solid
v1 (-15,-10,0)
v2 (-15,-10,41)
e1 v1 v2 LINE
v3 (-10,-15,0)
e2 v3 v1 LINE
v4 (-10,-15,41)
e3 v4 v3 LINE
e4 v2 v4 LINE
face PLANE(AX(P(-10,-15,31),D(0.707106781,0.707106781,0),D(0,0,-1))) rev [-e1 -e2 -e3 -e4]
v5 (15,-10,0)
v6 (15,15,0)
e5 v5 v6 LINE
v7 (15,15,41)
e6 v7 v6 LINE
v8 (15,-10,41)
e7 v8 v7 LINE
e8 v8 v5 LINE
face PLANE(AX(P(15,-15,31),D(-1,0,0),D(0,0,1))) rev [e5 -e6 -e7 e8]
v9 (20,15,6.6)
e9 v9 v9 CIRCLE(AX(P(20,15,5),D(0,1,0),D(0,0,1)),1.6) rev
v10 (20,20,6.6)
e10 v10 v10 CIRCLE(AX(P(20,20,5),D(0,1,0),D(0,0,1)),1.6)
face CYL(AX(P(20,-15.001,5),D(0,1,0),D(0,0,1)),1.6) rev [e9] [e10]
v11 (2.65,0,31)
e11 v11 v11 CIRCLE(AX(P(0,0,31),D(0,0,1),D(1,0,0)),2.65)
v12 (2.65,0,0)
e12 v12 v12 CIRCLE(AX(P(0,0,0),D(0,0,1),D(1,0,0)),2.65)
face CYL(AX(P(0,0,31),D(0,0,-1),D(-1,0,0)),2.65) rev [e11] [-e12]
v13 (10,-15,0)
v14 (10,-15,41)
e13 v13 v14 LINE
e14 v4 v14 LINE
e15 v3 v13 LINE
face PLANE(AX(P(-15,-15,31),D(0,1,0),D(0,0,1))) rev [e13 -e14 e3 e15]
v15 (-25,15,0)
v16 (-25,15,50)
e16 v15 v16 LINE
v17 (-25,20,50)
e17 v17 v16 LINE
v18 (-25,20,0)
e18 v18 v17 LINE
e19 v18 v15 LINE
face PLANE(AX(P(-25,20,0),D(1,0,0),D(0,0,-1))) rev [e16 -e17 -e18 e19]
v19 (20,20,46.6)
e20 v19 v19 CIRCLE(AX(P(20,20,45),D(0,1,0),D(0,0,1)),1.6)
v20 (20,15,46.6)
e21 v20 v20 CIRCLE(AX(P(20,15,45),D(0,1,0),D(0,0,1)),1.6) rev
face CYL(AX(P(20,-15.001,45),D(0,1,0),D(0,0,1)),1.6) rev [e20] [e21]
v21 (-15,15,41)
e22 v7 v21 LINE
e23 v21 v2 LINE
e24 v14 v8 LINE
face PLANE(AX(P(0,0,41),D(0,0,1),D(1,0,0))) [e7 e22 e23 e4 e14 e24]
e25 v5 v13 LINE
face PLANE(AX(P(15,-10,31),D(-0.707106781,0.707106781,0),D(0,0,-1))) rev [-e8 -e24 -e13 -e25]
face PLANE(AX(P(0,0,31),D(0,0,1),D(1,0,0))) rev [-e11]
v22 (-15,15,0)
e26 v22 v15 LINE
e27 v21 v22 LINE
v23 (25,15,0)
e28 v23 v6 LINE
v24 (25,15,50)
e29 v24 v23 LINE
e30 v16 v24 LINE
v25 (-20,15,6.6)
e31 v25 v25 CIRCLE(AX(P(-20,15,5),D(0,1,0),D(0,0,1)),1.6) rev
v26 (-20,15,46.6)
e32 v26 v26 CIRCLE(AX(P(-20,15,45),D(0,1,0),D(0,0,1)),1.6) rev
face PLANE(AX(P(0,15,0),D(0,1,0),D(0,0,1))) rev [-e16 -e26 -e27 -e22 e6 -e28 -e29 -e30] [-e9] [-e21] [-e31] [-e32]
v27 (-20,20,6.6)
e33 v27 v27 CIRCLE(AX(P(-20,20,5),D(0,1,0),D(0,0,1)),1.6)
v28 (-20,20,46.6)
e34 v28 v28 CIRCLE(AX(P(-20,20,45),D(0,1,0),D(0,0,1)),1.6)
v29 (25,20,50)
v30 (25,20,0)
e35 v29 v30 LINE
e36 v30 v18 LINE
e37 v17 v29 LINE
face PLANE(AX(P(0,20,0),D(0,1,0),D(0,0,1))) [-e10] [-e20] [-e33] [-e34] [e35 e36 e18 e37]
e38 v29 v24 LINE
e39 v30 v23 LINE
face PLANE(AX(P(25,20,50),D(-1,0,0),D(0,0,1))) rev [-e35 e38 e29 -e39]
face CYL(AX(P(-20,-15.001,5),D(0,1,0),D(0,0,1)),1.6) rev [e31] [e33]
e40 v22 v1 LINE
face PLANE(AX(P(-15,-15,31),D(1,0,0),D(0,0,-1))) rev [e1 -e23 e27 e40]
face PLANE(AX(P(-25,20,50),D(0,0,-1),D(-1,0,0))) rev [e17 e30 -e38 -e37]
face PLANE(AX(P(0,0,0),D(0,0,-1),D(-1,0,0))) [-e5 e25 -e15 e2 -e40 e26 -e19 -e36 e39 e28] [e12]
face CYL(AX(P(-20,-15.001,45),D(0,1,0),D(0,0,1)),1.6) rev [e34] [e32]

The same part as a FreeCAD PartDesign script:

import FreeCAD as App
import Part
import Sketcher
Q = App.Units.Quantity


def edges_at(feature, points):
    """Names of the edges that pass closest to the given points."""
    edges = feature.Shape.Edges
    near = lambda p: min(range(len(edges)), key=lambda i: edges[i].distToShape(Part.Vertex(*p))[0])
    return sorted({f"Edge{near(p) + 1}" for p in points})

doc = App.newDocument("Part")
params = doc.addObject("Spreadsheet::Sheet", "Params")
for row, (alias, value) in enumerate([
    ("sketch1_diameter", "5.3 mm"),
    ("sketch1_width", "30 mm"),
    ("pad1_length", "31 mm"),
    ("sketch2_width", "30 mm"),
    ("pad2_length", "10 mm"),
    ("sketch3_width", "50 mm"),
    ("pad3_length", "5 mm"),
    ("chamfer_size", "5 mm"),
    ("sketch4_diameter", "3.2 mm"),
    ("sketch5_diameter", "3.2 mm"),
    ("sketch6_diameter", "3.2 mm"),
    ("sketch7_diameter", "3.2 mm"),
], start=1):
    params.set(f"A{row}", alias)
    params.set(f"B{row}", "=" + value)
    params.setAlias(f"B{row}", alias)

body = doc.addObject("PartDesign::Body", "Body")

# Sketch on XY plane
sketch1 = body.newObject("Sketcher::SketchObject", "Sketch")
sketch1.AttachmentSupport = (doc.getObject("XY_Plane"), [""])
sketch1.MapMode = "FlatFace"
sketch1.addGeometry(Part.LineSegment(App.Vector(-15, 15, 0), App.Vector(-15, -15, 0)), False)
sketch1.addGeometry(Part.LineSegment(App.Vector(-15, -15, 0), App.Vector(15, -15, 0)), False)
sketch1.addGeometry(Part.LineSegment(App.Vector(15, -15, 0), App.Vector(15, 15, 0)), False)
sketch1.addGeometry(Part.LineSegment(App.Vector(15, 15, 0), App.Vector(-15, 15, 0)), False)
sketch1.addGeometry(Part.Circle(App.Vector(0, 0, 0), App.Vector(0, 0, 1), 2.6), False)
sketch1.addConstraint(Sketcher.Constraint("Coincident", 0, 2, 1, 1))
sketch1.addConstraint(Sketcher.Constraint("Coincident", 1, 2, 2, 1))
sketch1.addConstraint(Sketcher.Constraint("Coincident", 2, 2, 3, 1))
sketch1.addConstraint(Sketcher.Constraint("Coincident", 3, 2, 0, 1))
sketch1.addConstraint(Sketcher.Constraint("Vertical", 0))
sketch1.addConstraint(Sketcher.Constraint("Horizontal", 1))
sketch1.addConstraint(Sketcher.Constraint("Vertical", 2))
sketch1.addConstraint(Sketcher.Constraint("Horizontal", 3))
sketch1.addConstraint(Sketcher.Constraint("Coincident", 4, 3, -1, 1))
sketch1.addConstraint(Sketcher.Constraint("Symmetric", 0, 2, 2, 2, -1, 1))
sketch1.addConstraint(Sketcher.Constraint("Equal", 3, 0))
sketch1.addConstraint(Sketcher.Constraint("Diameter", 4, Q("5.3 mm")))
sketch1.addConstraint(Sketcher.Constraint("DistanceX", 1, 1, 1, 2, Q("30 mm")))
sketch1.setExpression("Constraints[11]", "Params.sketch1_diameter")
sketch1.setExpression("Constraints[12]", "Params.sketch1_width")
pad1 = body.newObject("PartDesign::Pad", "Pad")
pad1.Profile = sketch1
pad1.setExpression("Length", "Params.pad1_length")

# Sketch on XY plane
sketch2 = body.newObject("Sketcher::SketchObject", "Sketch001")
sketch2.AttachmentSupport = (doc.getObject("XY_Plane"), [""])
sketch2.MapMode = "FlatFace"
sketch2.AttachmentOffset = App.Placement(App.Vector(0, 0, 31), App.Rotation())
sketch2.addGeometry(Part.LineSegment(App.Vector(-15, 15, 0), App.Vector(-15, -15, 0)), False)
sketch2.addGeometry(Part.LineSegment(App.Vector(-15, -15, 0), App.Vector(15, -15, 0)), False)
sketch2.addGeometry(Part.LineSegment(App.Vector(15, -15, 0), App.Vector(15, 15, 0)), False)
sketch2.addGeometry(Part.LineSegment(App.Vector(15, 15, 0), App.Vector(-15, 15, 0)), False)
sketch2.addConstraint(Sketcher.Constraint("Coincident", 0, 2, 1, 1))
sketch2.addConstraint(Sketcher.Constraint("Coincident", 1, 2, 2, 1))
sketch2.addConstraint(Sketcher.Constraint("Coincident", 2, 2, 3, 1))
sketch2.addConstraint(Sketcher.Constraint("Coincident", 3, 2, 0, 1))
sketch2.addConstraint(Sketcher.Constraint("Vertical", 0))
sketch2.addConstraint(Sketcher.Constraint("Horizontal", 1))
sketch2.addConstraint(Sketcher.Constraint("Vertical", 2))
sketch2.addConstraint(Sketcher.Constraint("Horizontal", 3))
sketch2.addConstraint(Sketcher.Constraint("Symmetric", 0, 2, 2, 2, -1, 1))
sketch2.addConstraint(Sketcher.Constraint("Equal", 3, 0))
sketch2.addConstraint(Sketcher.Constraint("DistanceX", 1, 1, 1, 2, Q("30 mm")))
sketch2.setExpression("Constraints[10]", "Params.sketch2_width")
pad2 = body.newObject("PartDesign::Pad", "Pad001")
pad2.Profile = sketch2
pad2.setExpression("Length", "Params.pad2_length")

# Sketch on XZ plane
sketch3 = body.newObject("Sketcher::SketchObject", "Sketch002")
sketch3.AttachmentSupport = (doc.getObject("XZ_Plane"), [""])
sketch3.MapMode = "FlatFace"
sketch3.AttachmentOffset = App.Placement(App.Vector(0, 0, -15), App.Rotation())
sketch3.addGeometry(Part.LineSegment(App.Vector(-25, 0, 0), App.Vector(-25, 50, 0)), False)
sketch3.addGeometry(Part.LineSegment(App.Vector(-25, 50, 0), App.Vector(25, 50, 0)), False)
sketch3.addGeometry(Part.LineSegment(App.Vector(25, 50, 0), App.Vector(25, 0, 0)), False)
sketch3.addGeometry(Part.LineSegment(App.Vector(25, 0, 0), App.Vector(-25, 0, 0)), False)
sketch3.addConstraint(Sketcher.Constraint("Coincident", 0, 2, 1, 1))
sketch3.addConstraint(Sketcher.Constraint("Coincident", 1, 2, 2, 1))
sketch3.addConstraint(Sketcher.Constraint("Coincident", 2, 2, 3, 1))
sketch3.addConstraint(Sketcher.Constraint("Coincident", 3, 2, 0, 1))
sketch3.addConstraint(Sketcher.Constraint("Vertical", 0))
sketch3.addConstraint(Sketcher.Constraint("Horizontal", 1))
sketch3.addConstraint(Sketcher.Constraint("Vertical", 2))
sketch3.addConstraint(Sketcher.Constraint("Horizontal", 3))
sketch3.addConstraint(Sketcher.Constraint("Symmetric", 2, 2, 3, 2, -1, 1))
sketch3.addConstraint(Sketcher.Constraint("Equal", 3, 0))
sketch3.addConstraint(Sketcher.Constraint("DistanceX", 1, 1, 1, 2, Q("50 mm")))
sketch3.setExpression("Constraints[10]", "Params.sketch3_width")
pad3 = body.newObject("PartDesign::Pad", "Pad002")
pad3.Profile = sketch3
pad3.setExpression("Length", "Params.pad3_length")
pad3.Reversed = True
doc.recompute()

chamfer = body.newObject("PartDesign::Chamfer", "Chamfer")
chamfer.Base = (pad3, edges_at(pad3, [(15, -15, 20.5), (-15, -15, 20.5)]))
chamfer.setExpression("Size", "Params.chamfer_size")

# Sketch on XZ plane
sketch4 = body.newObject("Sketcher::SketchObject", "Sketch003")
sketch4.AttachmentSupport = (doc.getObject("XZ_Plane"), [""])
sketch4.MapMode = "FlatFace"
sketch4.AttachmentOffset = App.Placement(App.Vector(0, 0, -20), App.Rotation())
sketch4.addGeometry(Part.Circle(App.Vector(-20, 5, 0), App.Vector(0, 0, 1), 1.6), False)
sketch4.addConstraint(Sketcher.Constraint("Diameter", 0, Q("3.2 mm")))
sketch4.addConstraint(Sketcher.Constraint("DistanceX", 0, 3, -1, 1, Q("20 mm")))
sketch4.addConstraint(Sketcher.Constraint("DistanceY", -1, 1, 0, 3, Q("5 mm")))
sketch4.setExpression("Constraints[0]", "Params.sketch4_diameter")
pocket1 = body.newObject("PartDesign::Pocket", "Pocket")
pocket1.Profile = sketch4
pocket1.Type = "UpToFirst"
pocket1.Reversed = True

# Sketch on XZ plane
sketch5 = body.newObject("Sketcher::SketchObject", "Sketch004")
sketch5.AttachmentSupport = (doc.getObject("XZ_Plane"), [""])
sketch5.MapMode = "FlatFace"
sketch5.AttachmentOffset = App.Placement(App.Vector(0, 0, -20), App.Rotation())
sketch5.addGeometry(Part.Circle(App.Vector(20, 5, 0), App.Vector(0, 0, 1), 1.6), False)
sketch5.addConstraint(Sketcher.Constraint("Diameter", 0, Q("3.2 mm")))
sketch5.addConstraint(Sketcher.Constraint("DistanceX", -1, 1, 0, 3, Q("20 mm")))
sketch5.addConstraint(Sketcher.Constraint("DistanceY", -1, 1, 0, 3, Q("5 mm")))
sketch5.setExpression("Constraints[0]", "Params.sketch5_diameter")
pocket2 = body.newObject("PartDesign::Pocket", "Pocket001")
pocket2.Profile = sketch5
pocket2.Type = "UpToFirst"
pocket2.Reversed = True

# Sketch on XZ plane
sketch6 = body.newObject("Sketcher::SketchObject", "Sketch005")
sketch6.AttachmentSupport = (doc.getObject("XZ_Plane"), [""])
sketch6.MapMode = "FlatFace"
sketch6.AttachmentOffset = App.Placement(App.Vector(0, 0, -20), App.Rotation())
sketch6.addGeometry(Part.Circle(App.Vector(20, 45, 0), App.Vector(0, 0, 1), 1.6), False)
sketch6.addConstraint(Sketcher.Constraint("Diameter", 0, Q("3.2 mm")))
sketch6.addConstraint(Sketcher.Constraint("DistanceX", -1, 1, 0, 3, Q("20 mm")))
sketch6.addConstraint(Sketcher.Constraint("DistanceY", -1, 1, 0, 3, Q("45 mm")))
sketch6.setExpression("Constraints[0]", "Params.sketch6_diameter")
pocket3 = body.newObject("PartDesign::Pocket", "Pocket002")
pocket3.Profile = sketch6
pocket3.Type = "UpToFirst"
pocket3.Reversed = True

# Sketch on XZ plane
sketch7 = body.newObject("Sketcher::SketchObject", "Sketch006")
sketch7.AttachmentSupport = (doc.getObject("XZ_Plane"), [""])
sketch7.MapMode = "FlatFace"
sketch7.AttachmentOffset = App.Placement(App.Vector(0, 0, -20), App.Rotation())
sketch7.addGeometry(Part.Circle(App.Vector(-20, 45, 0), App.Vector(0, 0, 1), 1.6), False)
sketch7.addConstraint(Sketcher.Constraint("Diameter", 0, Q("3.2 mm")))
sketch7.addConstraint(Sketcher.Constraint("DistanceX", 0, 3, -1, 1, Q("20 mm")))
sketch7.addConstraint(Sketcher.Constraint("DistanceY", -1, 1, 0, 3, Q("45 mm")))
sketch7.setExpression("Constraints[0]", "Params.sketch7_diameter")
pocket4 = body.newObject("PartDesign::Pocket", "Pocket003")
pocket4.Profile = sketch7
pocket4.Type = "UpToFirst"
pocket4.Reversed = True

doc.recompute()
